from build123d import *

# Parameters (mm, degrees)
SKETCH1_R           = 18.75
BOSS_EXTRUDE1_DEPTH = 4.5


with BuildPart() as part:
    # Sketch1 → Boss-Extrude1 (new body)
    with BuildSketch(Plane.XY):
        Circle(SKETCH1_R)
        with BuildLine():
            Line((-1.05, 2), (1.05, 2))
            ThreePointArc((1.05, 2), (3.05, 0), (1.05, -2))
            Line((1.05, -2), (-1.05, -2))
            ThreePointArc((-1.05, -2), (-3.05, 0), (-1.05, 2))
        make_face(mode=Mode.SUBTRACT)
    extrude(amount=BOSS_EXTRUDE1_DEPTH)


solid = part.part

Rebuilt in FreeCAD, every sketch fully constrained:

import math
import FreeCAD as App
import Part
import Sketcher

V = App.Vector
Q = App.Units.Quantity

doc = App.newDocument("Part")
params = doc.addObject("Spreadsheet::Sheet", "Params")
for row, (alias, value) in enumerate([
    ("sketch1_radius", "2 mm"),
    ("sketch1_diameter", "37.5 mm"),
    ("sketch1_width", "2.1 mm"),
    ("pad1_length", "4.5 mm"),
], start=1):
    params.set(f"A{row}", alias)
    params.set(f"B{row}", "=" + value)
    params.setAlias(f"B{row}", alias)

body = doc.addObject("PartDesign::Body", "Body")

# Sketch on XY plane
sketch1 = body.newObject("Sketcher::SketchObject", "Sketch")
sketch1.AttachmentSupport = (doc.getObject("XY_Plane"), [""])
sketch1.MapMode = "FlatFace"
sketch1.addGeometry([
    Part.Circle(V(0, 0, 0), V(0, 0, 1), 18.8),  # 0
    Part.ArcOfCircle(Part.Circle(V(-1.1, 0, 0), V(0, 0, 1), 2), math.radians(90), math.radians(270)),  # 1
    Part.LineSegment(V(-1.1, 2, 0), V(1.1, 2, 0)),  # 2
    Part.ArcOfCircle(Part.Circle(V(1.1, 0, 0), V(0, 0, 1), 2), math.radians(-90), math.radians(90)),  # 3
    Part.LineSegment(V(1.1, -2, 0), V(-1.1, -2, 0)),  # 4
], False)
sketch1.addConstraint([
    Sketcher.Constraint("Tangent", 1, 1, 2, 1),
    Sketcher.Constraint("Tangent", 2, 2, 3, 2),
    Sketcher.Constraint("Tangent", 3, 1, 4, 1),
    Sketcher.Constraint("Tangent", 4, 2, 1, 2),
    Sketcher.Constraint("Horizontal", 2),
    Sketcher.Constraint("Horizontal", 4),
    Sketcher.Constraint("Coincident", 0, 3, -1, 1),
    Sketcher.Constraint("Symmetric", 1, 3, 3, 3, -1, 1),
    Sketcher.Constraint("Radius", 1, Q("2 mm")),
    Sketcher.Constraint("Diameter", 0, Q("37.5 mm")),
    Sketcher.Constraint("DistanceX", 2, 1, 2, 2, Q("2.1 mm")),
])
sketch1.setExpression("Constraints[8]", "Params.sketch1_radius")
sketch1.setExpression("Constraints[9]", "Params.sketch1_diameter")
sketch1.setExpression("Constraints[10]", "Params.sketch1_width")
pad1 = body.newObject("PartDesign::Pad", "Pad")
pad1.Profile = sketch1
pad1.setExpression("Length", "Params.pad1_length")

doc.recompute()
